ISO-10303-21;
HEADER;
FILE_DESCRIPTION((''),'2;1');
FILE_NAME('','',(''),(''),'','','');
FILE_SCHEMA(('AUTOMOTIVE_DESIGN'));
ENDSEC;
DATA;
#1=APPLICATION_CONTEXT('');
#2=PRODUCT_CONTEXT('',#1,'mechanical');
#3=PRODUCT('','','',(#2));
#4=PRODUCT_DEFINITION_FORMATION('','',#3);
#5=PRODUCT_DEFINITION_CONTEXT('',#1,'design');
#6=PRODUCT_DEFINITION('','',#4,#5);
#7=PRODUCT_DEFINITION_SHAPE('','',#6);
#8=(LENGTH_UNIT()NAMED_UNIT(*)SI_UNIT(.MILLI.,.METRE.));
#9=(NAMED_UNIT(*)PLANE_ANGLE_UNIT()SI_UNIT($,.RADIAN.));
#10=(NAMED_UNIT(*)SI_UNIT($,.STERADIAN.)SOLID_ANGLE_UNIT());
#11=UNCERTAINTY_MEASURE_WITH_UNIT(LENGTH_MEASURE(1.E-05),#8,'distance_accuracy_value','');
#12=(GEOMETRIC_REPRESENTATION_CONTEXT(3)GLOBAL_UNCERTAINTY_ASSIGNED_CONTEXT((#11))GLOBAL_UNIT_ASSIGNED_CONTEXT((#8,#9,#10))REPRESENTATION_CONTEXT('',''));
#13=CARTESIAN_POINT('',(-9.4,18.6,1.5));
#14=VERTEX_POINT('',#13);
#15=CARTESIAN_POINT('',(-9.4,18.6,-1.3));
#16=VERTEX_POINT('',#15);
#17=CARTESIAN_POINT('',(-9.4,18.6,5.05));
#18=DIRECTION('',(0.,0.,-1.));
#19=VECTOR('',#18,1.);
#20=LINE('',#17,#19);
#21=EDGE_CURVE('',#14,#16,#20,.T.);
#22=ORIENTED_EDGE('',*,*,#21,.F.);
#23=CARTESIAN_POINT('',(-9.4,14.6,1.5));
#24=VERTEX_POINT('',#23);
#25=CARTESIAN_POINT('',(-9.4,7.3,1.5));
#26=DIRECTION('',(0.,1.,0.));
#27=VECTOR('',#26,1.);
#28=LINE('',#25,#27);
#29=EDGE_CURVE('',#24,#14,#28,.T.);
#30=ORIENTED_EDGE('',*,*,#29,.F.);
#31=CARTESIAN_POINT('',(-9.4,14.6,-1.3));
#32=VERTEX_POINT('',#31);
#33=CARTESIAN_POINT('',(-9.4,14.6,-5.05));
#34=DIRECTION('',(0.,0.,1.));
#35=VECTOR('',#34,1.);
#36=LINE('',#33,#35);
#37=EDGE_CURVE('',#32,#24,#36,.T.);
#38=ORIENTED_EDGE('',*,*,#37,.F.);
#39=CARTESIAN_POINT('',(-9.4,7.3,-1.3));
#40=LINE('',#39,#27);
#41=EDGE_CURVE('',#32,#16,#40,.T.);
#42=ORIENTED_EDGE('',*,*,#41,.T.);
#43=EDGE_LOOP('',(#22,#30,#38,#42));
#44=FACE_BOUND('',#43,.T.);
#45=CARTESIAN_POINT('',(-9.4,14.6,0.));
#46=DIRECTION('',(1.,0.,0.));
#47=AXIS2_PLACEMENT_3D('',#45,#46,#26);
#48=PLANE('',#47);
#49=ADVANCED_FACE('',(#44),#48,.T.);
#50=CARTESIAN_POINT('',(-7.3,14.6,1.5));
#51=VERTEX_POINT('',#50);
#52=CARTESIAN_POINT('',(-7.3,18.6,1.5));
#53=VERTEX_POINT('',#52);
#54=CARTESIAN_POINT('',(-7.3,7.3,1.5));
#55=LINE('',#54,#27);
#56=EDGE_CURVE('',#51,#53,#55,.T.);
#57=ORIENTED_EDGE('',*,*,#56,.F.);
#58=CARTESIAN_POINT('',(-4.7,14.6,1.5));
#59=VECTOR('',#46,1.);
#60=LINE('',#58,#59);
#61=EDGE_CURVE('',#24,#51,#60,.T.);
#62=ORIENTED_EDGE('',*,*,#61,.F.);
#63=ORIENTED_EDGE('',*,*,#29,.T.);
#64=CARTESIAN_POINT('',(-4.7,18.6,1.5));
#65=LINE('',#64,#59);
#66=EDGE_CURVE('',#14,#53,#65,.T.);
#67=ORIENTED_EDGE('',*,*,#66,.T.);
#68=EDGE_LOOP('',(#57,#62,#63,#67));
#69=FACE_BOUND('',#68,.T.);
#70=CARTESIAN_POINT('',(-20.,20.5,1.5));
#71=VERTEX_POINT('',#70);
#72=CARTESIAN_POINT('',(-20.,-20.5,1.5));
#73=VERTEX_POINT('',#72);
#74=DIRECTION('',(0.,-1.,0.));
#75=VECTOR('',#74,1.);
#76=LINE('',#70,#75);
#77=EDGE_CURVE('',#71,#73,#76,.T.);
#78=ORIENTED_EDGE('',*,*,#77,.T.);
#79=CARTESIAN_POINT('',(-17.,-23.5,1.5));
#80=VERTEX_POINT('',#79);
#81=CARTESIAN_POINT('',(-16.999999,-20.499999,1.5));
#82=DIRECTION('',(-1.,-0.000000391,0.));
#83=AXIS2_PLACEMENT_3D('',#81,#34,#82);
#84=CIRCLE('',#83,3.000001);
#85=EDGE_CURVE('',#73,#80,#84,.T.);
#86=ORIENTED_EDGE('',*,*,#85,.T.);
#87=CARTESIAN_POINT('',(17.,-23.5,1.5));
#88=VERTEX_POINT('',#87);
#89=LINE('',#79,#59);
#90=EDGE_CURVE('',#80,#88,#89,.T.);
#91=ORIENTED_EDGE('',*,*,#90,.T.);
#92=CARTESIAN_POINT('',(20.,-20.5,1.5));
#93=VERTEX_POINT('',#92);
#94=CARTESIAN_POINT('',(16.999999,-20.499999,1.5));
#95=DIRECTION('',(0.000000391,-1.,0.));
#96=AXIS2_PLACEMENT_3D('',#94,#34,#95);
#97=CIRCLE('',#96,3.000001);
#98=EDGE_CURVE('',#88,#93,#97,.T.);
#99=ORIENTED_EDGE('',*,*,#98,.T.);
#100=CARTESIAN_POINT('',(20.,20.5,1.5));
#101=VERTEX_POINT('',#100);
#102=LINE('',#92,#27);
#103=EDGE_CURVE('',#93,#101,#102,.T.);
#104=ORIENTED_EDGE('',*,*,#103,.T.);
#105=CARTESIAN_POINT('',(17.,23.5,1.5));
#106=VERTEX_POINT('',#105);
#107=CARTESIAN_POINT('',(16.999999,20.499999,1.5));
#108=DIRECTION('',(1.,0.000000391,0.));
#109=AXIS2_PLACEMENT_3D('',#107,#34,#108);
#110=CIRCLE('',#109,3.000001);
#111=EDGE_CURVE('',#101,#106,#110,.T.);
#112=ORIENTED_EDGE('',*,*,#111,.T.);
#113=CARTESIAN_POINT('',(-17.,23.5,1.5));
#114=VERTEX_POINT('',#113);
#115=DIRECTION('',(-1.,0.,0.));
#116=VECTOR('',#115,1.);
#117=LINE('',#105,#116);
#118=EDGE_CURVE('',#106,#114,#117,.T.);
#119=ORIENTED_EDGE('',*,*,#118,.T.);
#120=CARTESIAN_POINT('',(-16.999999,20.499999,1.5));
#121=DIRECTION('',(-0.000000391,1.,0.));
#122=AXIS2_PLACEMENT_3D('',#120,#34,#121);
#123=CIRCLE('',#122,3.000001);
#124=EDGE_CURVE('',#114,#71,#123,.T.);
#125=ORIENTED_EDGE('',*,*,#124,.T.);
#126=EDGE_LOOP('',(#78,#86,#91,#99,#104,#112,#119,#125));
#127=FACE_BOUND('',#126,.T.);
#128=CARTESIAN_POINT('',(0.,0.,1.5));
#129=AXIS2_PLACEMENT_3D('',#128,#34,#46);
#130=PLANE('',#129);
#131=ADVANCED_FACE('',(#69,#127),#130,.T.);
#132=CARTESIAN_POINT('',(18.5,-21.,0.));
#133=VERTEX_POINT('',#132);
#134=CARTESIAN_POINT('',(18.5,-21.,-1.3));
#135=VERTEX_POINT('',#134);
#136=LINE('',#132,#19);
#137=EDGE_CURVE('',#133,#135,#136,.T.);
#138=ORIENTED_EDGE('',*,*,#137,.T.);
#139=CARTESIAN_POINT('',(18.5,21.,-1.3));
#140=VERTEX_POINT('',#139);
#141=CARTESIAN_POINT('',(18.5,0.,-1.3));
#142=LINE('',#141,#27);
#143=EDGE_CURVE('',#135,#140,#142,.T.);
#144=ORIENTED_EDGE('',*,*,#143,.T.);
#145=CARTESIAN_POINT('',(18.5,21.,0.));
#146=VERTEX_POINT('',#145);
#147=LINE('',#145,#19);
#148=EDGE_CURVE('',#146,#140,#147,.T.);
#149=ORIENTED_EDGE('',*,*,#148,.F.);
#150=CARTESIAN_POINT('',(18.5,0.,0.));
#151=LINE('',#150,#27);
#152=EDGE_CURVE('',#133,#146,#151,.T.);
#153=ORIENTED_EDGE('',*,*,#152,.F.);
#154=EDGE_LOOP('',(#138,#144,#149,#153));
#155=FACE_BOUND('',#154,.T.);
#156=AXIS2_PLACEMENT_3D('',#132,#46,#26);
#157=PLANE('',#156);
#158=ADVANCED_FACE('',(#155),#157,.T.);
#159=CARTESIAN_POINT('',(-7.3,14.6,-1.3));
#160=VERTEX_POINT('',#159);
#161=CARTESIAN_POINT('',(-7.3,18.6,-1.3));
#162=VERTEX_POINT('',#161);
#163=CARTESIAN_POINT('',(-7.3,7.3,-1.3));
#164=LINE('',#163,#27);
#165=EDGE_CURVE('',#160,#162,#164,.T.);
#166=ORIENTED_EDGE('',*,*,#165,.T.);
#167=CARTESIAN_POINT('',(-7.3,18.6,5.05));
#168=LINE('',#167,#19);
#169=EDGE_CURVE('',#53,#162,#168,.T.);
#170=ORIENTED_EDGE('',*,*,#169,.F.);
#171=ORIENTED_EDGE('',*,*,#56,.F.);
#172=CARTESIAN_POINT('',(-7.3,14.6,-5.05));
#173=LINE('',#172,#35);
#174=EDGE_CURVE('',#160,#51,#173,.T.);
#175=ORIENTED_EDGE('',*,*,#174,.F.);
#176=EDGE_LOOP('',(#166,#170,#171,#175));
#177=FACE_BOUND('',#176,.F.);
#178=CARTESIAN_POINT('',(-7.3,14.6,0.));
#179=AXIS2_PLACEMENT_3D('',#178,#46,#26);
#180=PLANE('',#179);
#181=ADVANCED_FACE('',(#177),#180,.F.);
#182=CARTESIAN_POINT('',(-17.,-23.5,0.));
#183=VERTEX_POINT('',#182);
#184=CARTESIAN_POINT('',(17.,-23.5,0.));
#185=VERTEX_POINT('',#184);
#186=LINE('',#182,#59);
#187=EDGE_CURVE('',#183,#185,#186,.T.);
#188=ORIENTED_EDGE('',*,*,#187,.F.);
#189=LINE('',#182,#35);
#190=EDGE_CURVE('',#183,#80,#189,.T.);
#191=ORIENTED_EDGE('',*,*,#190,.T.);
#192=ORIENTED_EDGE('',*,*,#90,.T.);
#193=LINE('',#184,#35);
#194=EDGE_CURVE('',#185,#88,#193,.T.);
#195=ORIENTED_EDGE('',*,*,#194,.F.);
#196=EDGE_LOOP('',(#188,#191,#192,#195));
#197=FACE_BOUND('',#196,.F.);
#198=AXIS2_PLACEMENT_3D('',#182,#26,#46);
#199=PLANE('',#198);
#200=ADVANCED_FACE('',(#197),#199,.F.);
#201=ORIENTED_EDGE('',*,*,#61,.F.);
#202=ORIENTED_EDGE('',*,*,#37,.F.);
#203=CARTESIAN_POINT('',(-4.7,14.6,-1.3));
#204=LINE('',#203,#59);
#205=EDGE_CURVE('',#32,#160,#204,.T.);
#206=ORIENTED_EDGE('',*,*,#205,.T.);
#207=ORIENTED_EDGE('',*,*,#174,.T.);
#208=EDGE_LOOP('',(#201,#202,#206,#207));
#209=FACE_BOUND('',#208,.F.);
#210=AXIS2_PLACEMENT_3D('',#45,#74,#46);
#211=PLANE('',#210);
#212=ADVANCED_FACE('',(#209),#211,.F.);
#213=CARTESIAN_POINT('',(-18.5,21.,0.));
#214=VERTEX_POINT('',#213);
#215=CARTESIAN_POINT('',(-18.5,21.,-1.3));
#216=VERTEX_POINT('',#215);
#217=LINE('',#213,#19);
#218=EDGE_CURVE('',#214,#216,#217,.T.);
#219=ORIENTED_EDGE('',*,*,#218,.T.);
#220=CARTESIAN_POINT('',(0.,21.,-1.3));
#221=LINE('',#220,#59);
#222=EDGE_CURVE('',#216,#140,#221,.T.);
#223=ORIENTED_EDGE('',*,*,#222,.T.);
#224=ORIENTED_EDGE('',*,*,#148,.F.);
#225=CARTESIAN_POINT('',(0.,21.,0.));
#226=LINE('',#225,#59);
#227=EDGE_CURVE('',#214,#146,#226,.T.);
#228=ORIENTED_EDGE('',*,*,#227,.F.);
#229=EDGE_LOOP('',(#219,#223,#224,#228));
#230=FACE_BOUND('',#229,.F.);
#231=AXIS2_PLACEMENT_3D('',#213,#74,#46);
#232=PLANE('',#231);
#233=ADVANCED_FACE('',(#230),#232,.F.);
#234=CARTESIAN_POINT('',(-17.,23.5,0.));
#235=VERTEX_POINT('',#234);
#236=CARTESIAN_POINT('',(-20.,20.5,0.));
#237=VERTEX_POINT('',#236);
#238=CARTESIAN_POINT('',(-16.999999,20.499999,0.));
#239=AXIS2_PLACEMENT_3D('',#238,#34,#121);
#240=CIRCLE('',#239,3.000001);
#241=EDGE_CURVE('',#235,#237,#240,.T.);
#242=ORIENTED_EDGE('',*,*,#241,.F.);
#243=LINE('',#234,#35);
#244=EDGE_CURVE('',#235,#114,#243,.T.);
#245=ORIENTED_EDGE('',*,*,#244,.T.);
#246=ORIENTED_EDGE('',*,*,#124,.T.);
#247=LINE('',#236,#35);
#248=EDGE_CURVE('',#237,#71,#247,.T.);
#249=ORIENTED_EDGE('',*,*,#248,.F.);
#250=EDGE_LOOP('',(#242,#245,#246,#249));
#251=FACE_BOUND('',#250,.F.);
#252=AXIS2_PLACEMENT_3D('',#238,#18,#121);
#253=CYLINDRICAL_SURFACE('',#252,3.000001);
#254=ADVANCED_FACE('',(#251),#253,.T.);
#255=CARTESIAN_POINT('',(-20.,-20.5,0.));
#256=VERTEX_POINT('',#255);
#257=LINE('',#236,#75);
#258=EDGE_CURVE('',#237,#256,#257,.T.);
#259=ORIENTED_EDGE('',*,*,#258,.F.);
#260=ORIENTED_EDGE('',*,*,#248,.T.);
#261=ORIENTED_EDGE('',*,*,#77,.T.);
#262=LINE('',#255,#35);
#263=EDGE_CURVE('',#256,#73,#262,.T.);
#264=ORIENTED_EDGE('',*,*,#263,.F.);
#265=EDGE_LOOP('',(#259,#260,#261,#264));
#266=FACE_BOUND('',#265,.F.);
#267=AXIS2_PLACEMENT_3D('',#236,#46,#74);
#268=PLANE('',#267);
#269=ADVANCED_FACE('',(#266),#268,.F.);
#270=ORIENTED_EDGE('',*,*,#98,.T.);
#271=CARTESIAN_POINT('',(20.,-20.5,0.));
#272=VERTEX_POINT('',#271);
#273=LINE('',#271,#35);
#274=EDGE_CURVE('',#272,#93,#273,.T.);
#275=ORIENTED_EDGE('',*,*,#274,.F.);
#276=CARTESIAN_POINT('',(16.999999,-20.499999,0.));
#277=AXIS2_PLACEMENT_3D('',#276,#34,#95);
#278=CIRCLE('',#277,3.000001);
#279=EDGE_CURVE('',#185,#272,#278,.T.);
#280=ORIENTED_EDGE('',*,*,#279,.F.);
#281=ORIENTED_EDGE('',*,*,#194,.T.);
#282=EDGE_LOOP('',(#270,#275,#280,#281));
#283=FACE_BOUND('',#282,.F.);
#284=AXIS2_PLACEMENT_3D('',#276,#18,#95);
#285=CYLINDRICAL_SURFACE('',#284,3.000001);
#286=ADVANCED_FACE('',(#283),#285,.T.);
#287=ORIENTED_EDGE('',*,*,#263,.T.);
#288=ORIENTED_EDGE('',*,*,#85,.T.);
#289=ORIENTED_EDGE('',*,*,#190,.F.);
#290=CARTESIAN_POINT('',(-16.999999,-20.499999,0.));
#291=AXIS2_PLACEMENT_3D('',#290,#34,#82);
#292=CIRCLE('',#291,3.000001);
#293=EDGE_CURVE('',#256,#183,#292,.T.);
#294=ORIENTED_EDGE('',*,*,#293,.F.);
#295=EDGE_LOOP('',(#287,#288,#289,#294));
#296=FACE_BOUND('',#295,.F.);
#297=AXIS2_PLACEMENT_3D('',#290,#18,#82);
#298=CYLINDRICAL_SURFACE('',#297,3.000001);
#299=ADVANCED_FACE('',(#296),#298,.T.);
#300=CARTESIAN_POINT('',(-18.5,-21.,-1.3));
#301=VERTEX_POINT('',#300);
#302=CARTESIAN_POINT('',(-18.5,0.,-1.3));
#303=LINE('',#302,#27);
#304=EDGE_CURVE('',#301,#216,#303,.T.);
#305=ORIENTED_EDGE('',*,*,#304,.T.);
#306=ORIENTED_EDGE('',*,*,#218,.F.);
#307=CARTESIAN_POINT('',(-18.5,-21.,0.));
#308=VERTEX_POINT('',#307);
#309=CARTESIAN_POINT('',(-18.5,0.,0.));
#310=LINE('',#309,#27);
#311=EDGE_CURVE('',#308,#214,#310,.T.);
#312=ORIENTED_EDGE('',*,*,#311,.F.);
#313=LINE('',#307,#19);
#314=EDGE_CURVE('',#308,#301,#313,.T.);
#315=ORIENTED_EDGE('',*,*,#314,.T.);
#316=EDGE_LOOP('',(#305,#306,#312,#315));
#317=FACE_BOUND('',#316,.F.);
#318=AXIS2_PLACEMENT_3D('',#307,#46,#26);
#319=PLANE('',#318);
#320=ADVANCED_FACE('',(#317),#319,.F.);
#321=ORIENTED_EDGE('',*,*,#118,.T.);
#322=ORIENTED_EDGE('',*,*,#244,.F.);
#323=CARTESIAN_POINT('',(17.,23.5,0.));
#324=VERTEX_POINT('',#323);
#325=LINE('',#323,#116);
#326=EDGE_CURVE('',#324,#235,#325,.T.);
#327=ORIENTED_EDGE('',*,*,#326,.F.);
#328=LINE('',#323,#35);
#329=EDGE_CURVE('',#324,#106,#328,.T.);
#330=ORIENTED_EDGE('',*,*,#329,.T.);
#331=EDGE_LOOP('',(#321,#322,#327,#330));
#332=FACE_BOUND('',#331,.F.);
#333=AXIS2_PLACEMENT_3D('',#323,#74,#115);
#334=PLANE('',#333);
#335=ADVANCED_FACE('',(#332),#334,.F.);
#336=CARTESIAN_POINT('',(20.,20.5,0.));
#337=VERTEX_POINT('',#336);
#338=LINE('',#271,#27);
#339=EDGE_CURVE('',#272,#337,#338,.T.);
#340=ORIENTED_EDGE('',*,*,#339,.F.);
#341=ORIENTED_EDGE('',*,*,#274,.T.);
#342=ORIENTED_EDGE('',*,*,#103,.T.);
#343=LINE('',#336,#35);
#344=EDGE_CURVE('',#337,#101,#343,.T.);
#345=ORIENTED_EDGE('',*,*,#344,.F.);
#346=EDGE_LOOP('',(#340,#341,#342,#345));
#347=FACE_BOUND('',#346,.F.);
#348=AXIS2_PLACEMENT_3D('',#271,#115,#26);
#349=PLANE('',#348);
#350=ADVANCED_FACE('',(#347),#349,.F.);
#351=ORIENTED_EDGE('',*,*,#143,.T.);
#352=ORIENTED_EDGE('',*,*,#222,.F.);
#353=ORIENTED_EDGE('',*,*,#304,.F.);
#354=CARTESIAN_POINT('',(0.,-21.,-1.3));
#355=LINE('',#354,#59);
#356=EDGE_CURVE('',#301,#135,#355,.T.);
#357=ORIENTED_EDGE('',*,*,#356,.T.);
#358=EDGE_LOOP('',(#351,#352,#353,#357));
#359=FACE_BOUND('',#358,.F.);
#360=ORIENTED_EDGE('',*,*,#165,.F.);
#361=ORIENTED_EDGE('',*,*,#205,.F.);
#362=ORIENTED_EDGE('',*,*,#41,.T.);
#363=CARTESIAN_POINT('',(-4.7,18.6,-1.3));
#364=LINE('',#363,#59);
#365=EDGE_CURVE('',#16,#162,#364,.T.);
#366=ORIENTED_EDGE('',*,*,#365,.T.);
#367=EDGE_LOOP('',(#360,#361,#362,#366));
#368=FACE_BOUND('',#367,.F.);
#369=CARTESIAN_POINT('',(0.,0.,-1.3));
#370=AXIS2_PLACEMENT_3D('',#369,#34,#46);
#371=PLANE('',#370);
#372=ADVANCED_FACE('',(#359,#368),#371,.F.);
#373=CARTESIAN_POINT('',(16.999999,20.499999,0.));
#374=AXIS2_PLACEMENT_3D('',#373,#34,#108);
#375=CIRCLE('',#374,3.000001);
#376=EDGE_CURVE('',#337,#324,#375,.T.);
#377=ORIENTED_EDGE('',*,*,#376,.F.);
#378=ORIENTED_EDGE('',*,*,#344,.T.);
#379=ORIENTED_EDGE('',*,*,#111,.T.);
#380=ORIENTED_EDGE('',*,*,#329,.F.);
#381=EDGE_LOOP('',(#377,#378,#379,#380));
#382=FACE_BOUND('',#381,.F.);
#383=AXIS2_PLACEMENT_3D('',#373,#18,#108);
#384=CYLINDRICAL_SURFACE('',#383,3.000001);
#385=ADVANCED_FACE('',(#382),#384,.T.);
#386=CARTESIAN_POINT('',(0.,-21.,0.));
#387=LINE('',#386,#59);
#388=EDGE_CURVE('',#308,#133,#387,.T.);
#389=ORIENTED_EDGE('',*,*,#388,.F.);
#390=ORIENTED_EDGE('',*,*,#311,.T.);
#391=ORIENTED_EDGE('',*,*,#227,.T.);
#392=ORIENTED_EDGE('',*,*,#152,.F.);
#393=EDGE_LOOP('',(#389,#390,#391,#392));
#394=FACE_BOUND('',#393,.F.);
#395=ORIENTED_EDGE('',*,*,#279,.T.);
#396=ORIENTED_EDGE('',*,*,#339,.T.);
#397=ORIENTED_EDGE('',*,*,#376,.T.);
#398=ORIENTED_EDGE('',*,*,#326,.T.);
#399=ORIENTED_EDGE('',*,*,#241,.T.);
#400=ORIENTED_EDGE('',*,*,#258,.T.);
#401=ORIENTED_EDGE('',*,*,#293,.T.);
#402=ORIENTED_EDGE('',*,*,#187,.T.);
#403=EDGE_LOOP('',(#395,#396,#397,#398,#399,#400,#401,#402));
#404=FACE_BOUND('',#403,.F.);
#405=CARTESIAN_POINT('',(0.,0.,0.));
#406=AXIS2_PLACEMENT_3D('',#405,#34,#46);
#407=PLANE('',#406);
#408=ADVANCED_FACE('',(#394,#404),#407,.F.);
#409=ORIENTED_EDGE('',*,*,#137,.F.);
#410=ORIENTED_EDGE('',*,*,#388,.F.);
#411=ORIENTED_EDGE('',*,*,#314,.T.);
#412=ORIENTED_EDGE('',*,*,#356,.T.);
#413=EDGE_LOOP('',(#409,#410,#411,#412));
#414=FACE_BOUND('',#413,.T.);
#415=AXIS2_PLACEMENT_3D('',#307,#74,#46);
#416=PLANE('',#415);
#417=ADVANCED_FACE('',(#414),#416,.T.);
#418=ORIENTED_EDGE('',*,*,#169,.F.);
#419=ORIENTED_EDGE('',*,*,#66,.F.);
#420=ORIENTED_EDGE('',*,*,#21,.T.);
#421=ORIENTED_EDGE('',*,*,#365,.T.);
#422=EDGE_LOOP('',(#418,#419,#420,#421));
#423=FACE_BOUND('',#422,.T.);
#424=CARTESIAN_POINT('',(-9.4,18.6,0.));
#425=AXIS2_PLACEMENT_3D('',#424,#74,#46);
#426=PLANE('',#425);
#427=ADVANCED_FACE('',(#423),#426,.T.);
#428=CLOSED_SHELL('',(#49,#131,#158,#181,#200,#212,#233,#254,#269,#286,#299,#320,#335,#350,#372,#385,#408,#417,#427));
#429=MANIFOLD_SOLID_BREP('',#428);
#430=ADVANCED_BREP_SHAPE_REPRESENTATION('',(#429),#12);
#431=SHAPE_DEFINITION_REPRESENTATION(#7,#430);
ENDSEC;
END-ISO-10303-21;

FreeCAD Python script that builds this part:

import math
import FreeCAD as App
import Part
import Sketcher
from FreeCAD import Vector
Q = App.Units.Quantity


def add_polygon(sketch, points):
    """Adds a closed chain of lines whose ends are joined by coincident constraints."""
    first, n = sketch.GeometryCount, len(points)
    for a, b in zip(points, points[1:] + points[:1]):
        sketch.addGeometry(Part.LineSegment(App.Vector(*a, 0), App.Vector(*b, 0)), False)
    for i in range(n):
        sketch.addConstraint(Sketcher.Constraint("Coincident", first + i, 2, first + (i + 1) % n, 1))

doc = App.newDocument("Part")
params = doc.addObject("Spreadsheet::Sheet", "Params")
for row, (alias, value) in enumerate([
    ("sketch1_radius", "3.000001 mm"),
    ("sketch1_width", "34 mm"),
    ("sketch1_height", "41 mm"),
    ("pad1_length", "1.5 mm"),
    ("sketch2_width", "37 mm"),
    ("sketch2_height", "42 mm"),
    ("pad2_length", "1.3 mm"),
    ("sketch3_height", "4 mm"),
    ("sketch3_width", "2.1 mm"),
    ("pocket1_length", "10.1 mm"),
], start=1):
    params.set(f"A{row}", alias)
    params.set(f"B{row}", "=" + value)
    params.setAlias(f"B{row}", alias)

body = doc.addObject("PartDesign::Body", "Body")

sketch1 = body.newObject("Sketcher::SketchObject", "Sketch")
sketch1.AttachmentSupport = (doc.getObject("XY_Plane"), [""])
sketch1.MapMode = "FlatFace"
sketch1.addGeometry([
    Part.LineSegment(Vector(17, 23.5, 0), Vector(-17, 23.5, 0)),
    Part.ArcOfCircle(Part.Circle(Vector(-16.999999, 20.499999, 0), Vector(0, 0, 1), 3.000001), math.radians(90.000022), math.radians(179.999978)),
    Part.LineSegment(Vector(-20, 20.5, 0), Vector(-20, -20.5, 0)),
    Part.ArcOfCircle(Part.Circle(Vector(-16.999999, -20.499999, 0), Vector(0, 0, 1), 3.000001), math.radians(-179.999978), math.radians(-90.000022)),
    Part.LineSegment(Vector(-17, -23.5, 0), Vector(17, -23.5, 0)),
    Part.ArcOfCircle(Part.Circle(Vector(16.999999, -20.499999, 0), Vector(0, 0, 1), 3.000001), math.radians(-89.999978), math.radians(-0.000022)),
    Part.LineSegment(Vector(20, -20.5, 0), Vector(20, 20.5, 0)),
    Part.ArcOfCircle(Part.Circle(Vector(16.999999, 20.499999, 0), Vector(0, 0, 1), 3.000001), math.radians(0.000022), math.radians(89.999978)),
], False)
sketch1.addConstraint([
    Sketcher.Constraint("Tangent", 0, 2, 1, 1),
    Sketcher.Constraint("Tangent", 1, 2, 2, 1),
    Sketcher.Constraint("Tangent", 2, 2, 3, 1),
    Sketcher.Constraint("Tangent", 3, 2, 4, 1),
    Sketcher.Constraint("Tangent", 4, 2, 5, 1),
    Sketcher.Constraint("Tangent", 5, 2, 6, 1),
    Sketcher.Constraint("Tangent", 6, 2, 7, 1),
    Sketcher.Constraint("Tangent", 7, 2, 0, 1),
    Sketcher.Constraint("Horizontal", 0),
    Sketcher.Constraint("Vertical", 2),
    Sketcher.Constraint("Horizontal", 4),
    Sketcher.Constraint("Vertical", 6),
    Sketcher.Constraint("Equal", 1, 3),
    Sketcher.Constraint("Equal", 3, 5),
    Sketcher.Constraint("Equal", 5, 7),
    Sketcher.Constraint("Symmetric", 1, 3, 5, 3, -1, 1),
    Sketcher.Constraint("Radius", 1, Q("3.000001 mm")),
    Sketcher.Constraint("DistanceX", 0, 2, 0, 1, Q("34 mm")),
    Sketcher.Constraint("DistanceY", 2, 2, 2, 1, Q("41 mm")),
])
sketch1.setExpression("Constraints[16]", "Params.sketch1_radius")
sketch1.setExpression("Constraints[17]", "Params.sketch1_width")
sketch1.setExpression("Constraints[18]", "Params.sketch1_height")
pad1 = body.newObject("PartDesign::Pad", "Pad")
pad1.Profile = sketch1
pad1.setExpression("Length", "Params.pad1_length")

sketch2 = body.newObject("Sketcher::SketchObject", "Sketch001")
sketch2.AttachmentSupport = (doc.getObject("XY_Plane"), [""])
sketch2.MapMode = "FlatFace"
add_polygon(sketch2, [(-18.5, 21), (-18.5, -21), (18.5, -21), (18.5, 21)])
sketch2.addConstraint([
    Sketcher.Constraint("Vertical", 0),
    Sketcher.Constraint("Horizontal", 1),
    Sketcher.Constraint("Vertical", 2),
    Sketcher.Constraint("Horizontal", 3),
    Sketcher.Constraint("Symmetric", 0, 2, 2, 2, -1, 1),
    Sketcher.Constraint("DistanceX", 1, 1, 1, 2, Q("37 mm")),
    Sketcher.Constraint("DistanceY", 0, 2, 0, 1, Q("42 mm")),
])
sketch2.setExpression("Constraints[9]", "Params.sketch2_width")
sketch2.setExpression("Constraints[10]", "Params.sketch2_height")
pad2 = body.newObject("PartDesign::Pad", "Pad001")
pad2.Profile = sketch2
pad2.setExpression("Length", "Params.pad2_length")
pad2.Reversed = True

sketch3 = body.newObject("Sketcher::SketchObject", "Sketch002")
sketch3.AttachmentSupport = (doc.getObject("XY_Plane"), [""])
sketch3.MapMode = "FlatFace"
add_polygon(sketch3, [(-9.4, 18.6), (-9.4, 14.6), (-7.3, 14.6), (-7.3, 18.6)])
sketch3.addConstraint([
    Sketcher.Constraint("Vertical", 0),
    Sketcher.Constraint("Horizontal", 1),
    Sketcher.Constraint("Vertical", 2),
    Sketcher.Constraint("Horizontal", 3),
    Sketcher.Constraint("DistanceY", 0, 2, 0, 1, Q("4 mm")),
    Sketcher.Constraint("DistanceX", 1, 1, 1, 2, Q("2.1 mm")),
    Sketcher.Constraint("DistanceX", 0, 2, -1, 1, Q("9.4 mm")),
    Sketcher.Constraint("DistanceY", -1, 1, 0, 2, Q("14.6 mm")),
])
sketch3.setExpression("Constraints[8]", "Params.sketch3_height")
sketch3.setExpression("Constraints[9]", "Params.sketch3_width")
pocket1 = body.newObject("PartDesign::Pocket", "Pocket")
pocket1.Profile = sketch3
pocket1.setExpression("Length", "Params.pocket1_length")
pocket1.Midplane = True

doc.recompute()
